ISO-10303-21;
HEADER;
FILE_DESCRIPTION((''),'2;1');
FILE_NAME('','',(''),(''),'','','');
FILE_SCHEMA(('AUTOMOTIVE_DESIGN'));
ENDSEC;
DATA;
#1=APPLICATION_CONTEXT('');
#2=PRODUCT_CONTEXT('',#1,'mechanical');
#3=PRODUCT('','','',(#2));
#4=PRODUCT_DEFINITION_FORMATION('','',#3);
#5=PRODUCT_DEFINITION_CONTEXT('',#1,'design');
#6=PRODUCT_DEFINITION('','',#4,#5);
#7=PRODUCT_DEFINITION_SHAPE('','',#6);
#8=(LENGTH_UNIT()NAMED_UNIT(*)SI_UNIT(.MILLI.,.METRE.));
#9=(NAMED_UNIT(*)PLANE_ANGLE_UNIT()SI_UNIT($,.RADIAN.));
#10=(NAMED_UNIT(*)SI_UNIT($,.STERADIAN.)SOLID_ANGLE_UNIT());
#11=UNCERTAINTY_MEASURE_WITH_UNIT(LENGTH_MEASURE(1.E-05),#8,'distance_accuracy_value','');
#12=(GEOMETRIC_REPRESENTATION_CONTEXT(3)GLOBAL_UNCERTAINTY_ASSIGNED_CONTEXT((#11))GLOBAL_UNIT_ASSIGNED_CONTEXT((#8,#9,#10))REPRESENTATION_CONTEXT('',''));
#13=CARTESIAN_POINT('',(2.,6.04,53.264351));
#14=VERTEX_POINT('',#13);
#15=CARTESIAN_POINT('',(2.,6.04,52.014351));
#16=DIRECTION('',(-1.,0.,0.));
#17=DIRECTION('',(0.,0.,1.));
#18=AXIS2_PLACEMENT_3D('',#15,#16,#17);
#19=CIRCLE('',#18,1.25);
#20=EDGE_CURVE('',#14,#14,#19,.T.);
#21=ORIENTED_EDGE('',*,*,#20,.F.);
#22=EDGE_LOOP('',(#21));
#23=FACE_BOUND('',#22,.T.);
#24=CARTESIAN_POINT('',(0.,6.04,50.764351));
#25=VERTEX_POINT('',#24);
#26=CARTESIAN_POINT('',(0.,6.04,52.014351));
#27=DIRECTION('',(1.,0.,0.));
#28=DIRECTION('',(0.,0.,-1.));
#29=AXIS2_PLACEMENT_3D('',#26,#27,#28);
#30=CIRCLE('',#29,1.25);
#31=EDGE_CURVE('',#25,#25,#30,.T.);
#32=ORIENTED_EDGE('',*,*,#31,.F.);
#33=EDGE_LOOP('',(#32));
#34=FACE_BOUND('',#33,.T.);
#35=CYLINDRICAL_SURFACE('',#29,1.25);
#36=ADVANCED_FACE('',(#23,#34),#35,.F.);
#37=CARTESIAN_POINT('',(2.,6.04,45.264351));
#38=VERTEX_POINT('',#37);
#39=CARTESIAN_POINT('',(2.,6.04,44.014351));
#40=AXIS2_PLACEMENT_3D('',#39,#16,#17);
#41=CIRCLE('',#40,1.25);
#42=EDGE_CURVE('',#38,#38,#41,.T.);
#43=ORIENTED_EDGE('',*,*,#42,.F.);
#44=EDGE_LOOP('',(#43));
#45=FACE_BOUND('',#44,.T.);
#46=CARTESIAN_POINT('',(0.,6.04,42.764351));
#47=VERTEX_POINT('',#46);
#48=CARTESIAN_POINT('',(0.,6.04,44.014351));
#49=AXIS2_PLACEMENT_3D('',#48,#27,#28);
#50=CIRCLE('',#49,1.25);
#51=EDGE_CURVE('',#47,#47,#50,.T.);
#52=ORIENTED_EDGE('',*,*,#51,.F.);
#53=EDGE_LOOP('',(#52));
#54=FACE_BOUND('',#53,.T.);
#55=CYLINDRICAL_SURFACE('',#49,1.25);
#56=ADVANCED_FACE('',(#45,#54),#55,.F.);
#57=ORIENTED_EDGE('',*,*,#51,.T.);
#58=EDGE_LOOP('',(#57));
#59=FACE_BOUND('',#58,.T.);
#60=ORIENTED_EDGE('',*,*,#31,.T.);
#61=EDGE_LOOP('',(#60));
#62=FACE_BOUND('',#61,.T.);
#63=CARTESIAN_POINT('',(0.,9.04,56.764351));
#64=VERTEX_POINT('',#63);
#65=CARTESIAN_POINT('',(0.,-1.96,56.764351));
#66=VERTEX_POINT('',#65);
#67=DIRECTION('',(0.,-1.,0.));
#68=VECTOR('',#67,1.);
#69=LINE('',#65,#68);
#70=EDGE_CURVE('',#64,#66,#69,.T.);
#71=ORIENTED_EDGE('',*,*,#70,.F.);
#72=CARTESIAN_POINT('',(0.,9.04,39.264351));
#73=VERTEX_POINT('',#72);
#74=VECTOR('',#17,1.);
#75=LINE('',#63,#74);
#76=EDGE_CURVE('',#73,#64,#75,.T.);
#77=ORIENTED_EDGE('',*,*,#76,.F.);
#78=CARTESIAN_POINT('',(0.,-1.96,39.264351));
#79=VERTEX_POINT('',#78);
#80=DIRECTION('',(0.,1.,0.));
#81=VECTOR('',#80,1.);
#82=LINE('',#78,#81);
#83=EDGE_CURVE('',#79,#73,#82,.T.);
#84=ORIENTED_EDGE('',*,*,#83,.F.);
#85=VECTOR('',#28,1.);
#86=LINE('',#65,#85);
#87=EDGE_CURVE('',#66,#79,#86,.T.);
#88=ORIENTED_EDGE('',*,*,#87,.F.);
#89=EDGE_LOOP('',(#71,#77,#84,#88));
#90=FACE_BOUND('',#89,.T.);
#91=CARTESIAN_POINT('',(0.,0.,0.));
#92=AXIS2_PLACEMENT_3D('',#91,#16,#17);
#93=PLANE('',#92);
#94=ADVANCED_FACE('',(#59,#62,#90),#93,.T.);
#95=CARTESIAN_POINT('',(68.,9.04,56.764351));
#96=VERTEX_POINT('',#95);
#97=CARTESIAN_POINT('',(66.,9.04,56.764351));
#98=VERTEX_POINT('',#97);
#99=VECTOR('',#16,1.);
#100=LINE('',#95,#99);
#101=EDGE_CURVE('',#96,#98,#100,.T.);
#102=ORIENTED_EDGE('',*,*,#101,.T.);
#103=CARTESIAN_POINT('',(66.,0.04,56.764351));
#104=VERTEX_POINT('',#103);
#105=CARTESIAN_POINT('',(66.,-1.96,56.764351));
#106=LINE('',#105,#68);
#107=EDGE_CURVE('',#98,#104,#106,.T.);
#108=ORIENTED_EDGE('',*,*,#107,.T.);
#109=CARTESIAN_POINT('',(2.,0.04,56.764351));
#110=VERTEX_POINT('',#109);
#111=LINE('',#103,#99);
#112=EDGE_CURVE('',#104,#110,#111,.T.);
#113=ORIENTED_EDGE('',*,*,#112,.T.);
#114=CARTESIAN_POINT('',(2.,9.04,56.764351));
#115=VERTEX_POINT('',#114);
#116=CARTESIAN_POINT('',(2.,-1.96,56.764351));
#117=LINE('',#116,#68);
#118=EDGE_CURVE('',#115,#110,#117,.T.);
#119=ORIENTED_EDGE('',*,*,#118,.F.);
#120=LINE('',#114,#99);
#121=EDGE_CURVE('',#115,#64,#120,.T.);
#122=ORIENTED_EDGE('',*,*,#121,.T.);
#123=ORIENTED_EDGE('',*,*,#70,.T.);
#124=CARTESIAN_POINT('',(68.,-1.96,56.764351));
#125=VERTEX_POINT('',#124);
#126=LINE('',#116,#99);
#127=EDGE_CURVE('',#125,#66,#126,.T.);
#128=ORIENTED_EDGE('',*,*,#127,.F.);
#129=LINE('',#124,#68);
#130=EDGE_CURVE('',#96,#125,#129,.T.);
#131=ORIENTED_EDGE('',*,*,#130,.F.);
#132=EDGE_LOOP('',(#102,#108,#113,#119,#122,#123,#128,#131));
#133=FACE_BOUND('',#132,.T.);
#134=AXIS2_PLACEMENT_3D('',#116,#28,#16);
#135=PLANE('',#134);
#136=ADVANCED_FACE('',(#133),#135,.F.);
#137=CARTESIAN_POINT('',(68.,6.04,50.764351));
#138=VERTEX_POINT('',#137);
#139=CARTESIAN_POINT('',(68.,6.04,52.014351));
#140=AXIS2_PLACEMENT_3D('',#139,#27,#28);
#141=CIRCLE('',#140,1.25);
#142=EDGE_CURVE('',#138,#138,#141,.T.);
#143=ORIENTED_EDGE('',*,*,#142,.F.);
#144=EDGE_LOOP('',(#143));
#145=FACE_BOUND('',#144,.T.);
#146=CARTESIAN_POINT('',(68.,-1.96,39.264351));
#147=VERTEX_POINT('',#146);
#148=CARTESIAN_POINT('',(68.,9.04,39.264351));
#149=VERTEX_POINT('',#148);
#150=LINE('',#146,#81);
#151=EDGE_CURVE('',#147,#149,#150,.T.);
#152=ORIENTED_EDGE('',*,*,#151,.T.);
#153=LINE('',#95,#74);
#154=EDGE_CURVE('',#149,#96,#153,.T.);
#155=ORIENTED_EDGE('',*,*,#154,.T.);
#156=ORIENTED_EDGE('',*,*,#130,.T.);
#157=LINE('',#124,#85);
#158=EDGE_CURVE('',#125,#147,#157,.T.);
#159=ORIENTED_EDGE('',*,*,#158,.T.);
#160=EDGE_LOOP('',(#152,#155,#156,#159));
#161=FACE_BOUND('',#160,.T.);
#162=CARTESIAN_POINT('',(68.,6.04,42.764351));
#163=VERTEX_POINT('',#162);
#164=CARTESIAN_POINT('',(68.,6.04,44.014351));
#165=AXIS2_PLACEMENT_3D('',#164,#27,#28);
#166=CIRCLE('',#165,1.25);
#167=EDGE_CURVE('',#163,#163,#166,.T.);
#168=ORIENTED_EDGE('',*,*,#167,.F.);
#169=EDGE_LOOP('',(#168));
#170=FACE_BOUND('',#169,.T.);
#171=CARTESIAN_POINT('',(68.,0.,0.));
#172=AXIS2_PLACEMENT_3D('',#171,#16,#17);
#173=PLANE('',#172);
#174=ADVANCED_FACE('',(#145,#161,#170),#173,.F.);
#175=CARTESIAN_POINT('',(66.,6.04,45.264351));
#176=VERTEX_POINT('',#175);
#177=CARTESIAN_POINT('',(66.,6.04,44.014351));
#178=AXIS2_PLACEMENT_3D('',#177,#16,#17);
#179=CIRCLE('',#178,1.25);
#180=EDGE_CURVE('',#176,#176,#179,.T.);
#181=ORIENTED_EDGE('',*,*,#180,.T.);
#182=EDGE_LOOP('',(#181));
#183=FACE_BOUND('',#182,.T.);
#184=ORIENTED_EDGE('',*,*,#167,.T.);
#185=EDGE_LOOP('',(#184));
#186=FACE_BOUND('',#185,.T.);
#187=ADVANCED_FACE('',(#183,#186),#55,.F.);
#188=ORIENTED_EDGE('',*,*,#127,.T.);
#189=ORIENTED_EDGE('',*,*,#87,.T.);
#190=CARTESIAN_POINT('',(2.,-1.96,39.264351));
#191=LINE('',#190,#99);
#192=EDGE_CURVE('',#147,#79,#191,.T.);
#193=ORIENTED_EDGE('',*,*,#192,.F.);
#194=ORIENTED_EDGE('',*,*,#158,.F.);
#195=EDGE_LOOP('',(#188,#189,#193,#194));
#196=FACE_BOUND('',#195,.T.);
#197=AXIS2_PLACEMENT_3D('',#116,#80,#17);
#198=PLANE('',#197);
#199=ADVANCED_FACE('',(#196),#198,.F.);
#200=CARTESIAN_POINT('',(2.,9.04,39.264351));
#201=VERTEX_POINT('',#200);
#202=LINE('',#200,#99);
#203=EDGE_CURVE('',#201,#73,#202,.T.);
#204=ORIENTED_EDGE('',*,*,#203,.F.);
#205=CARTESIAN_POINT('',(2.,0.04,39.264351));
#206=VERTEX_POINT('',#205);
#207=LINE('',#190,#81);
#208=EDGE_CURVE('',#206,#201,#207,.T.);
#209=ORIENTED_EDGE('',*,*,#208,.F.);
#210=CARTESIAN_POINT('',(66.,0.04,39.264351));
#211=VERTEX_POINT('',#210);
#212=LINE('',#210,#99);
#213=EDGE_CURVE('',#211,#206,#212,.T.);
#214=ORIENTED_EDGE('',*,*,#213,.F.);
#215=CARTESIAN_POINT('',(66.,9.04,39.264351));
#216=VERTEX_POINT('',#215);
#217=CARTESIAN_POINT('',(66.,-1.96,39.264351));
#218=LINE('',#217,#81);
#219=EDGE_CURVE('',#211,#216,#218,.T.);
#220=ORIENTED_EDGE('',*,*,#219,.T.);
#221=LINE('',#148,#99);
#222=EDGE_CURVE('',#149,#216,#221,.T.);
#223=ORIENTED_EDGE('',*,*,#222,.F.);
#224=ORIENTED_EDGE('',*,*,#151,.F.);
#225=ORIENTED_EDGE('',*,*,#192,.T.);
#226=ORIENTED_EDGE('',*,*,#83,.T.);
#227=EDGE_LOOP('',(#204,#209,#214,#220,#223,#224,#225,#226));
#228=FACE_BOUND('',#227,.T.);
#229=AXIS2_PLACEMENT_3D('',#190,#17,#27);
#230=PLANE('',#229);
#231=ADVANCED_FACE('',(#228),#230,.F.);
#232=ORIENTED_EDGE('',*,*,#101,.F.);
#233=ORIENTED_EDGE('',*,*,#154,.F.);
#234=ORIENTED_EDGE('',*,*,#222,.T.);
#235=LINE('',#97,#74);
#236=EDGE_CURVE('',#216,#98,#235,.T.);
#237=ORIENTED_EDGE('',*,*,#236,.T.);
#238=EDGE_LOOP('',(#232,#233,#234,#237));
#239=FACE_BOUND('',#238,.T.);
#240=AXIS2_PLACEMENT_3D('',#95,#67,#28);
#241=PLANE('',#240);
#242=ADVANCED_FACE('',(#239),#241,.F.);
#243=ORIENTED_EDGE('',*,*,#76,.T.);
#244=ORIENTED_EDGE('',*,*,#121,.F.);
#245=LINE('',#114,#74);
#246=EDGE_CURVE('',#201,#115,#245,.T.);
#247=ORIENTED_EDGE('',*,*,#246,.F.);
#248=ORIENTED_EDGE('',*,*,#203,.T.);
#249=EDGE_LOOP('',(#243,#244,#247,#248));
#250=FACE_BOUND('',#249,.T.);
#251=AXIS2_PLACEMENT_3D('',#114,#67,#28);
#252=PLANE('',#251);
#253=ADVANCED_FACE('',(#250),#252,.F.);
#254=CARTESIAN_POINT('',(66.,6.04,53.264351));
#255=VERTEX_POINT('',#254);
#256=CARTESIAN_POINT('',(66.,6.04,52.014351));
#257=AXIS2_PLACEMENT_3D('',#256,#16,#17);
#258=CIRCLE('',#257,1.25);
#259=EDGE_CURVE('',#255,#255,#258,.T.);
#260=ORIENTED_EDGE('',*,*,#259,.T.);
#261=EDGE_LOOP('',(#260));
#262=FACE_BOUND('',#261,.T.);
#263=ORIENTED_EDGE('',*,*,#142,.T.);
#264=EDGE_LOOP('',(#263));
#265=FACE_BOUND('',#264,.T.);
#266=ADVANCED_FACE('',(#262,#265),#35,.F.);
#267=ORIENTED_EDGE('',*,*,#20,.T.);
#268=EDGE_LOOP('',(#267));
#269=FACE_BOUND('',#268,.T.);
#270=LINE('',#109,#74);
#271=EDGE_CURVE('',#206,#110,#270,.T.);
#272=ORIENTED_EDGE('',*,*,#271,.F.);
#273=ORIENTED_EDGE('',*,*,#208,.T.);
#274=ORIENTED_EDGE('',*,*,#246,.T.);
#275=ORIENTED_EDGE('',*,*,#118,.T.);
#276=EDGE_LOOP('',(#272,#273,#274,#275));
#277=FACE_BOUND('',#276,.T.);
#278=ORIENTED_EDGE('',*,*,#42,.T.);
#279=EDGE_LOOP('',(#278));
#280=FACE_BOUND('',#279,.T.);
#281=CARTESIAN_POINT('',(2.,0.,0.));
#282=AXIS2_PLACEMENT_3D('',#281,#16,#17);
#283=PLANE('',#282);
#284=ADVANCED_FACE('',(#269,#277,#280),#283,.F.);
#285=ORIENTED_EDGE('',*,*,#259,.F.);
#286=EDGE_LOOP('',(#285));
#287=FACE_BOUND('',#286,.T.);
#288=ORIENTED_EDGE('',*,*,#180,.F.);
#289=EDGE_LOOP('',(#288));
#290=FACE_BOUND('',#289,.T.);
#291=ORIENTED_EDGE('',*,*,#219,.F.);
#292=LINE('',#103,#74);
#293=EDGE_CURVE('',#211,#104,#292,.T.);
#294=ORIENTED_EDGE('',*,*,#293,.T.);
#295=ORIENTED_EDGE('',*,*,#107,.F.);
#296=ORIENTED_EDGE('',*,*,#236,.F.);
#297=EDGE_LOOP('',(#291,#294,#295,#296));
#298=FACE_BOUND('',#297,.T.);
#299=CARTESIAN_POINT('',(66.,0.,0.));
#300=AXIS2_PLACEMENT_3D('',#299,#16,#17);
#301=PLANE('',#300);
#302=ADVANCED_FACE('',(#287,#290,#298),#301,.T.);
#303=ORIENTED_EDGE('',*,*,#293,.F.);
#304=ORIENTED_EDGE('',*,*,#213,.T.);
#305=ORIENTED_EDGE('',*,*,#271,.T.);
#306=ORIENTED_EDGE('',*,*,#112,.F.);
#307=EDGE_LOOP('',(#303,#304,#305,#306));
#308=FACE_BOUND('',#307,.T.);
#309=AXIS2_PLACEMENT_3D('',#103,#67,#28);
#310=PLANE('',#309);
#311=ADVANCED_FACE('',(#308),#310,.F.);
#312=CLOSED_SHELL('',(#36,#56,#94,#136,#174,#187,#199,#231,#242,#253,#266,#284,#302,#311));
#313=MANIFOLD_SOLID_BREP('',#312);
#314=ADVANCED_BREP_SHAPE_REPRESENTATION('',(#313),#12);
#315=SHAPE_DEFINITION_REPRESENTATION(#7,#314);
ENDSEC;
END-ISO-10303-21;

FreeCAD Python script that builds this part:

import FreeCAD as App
import Part
import Sketcher

V = App.Vector

doc = App.newDocument("Part")
body = doc.addObject("PartDesign::Body", "Body")

# Sketch on YZ plane
sketch1 = body.newObject("Sketcher::SketchObject", "Sketch")
sketch1.AttachmentSupport = (doc.getObject("YZ_Plane"), [""])
sketch1.MapMode = "FlatFace"
sketch1.addGeometry([
    Part.LineSegment(V(9.04, 56.764351, 0), V(-1.96, 56.764351, 0)),
    Part.LineSegment(V(-1.96, 56.764351, 0), V(-1.96, 39.264351, 0)),
    Part.LineSegment(V(-1.96, 39.264351, 0), V(9.04, 39.264351, 0)),
    Part.LineSegment(V(9.04, 39.264351, 0), V(9.04, 56.764351, 0)),
], False)
sketch1.addConstraint([
    Sketcher.Constraint("Coincident", 0, 2, 1, 1),
    Sketcher.Constraint("Coincident", 1, 2, 2, 1),
    Sketcher.Constraint("Coincident", 2, 2, 3, 1),
    Sketcher.Constraint("Coincident", 3, 2, 0, 1),
    Sketcher.Constraint("Horizontal", 0),
    Sketcher.Constraint("Vertical", 1),
    Sketcher.Constraint("Horizontal", 2),
    Sketcher.Constraint("Vertical", 3),
    Sketcher.Constraint("DistanceX", 0, 2, 0, 1, 11.0),
    Sketcher.Constraint("DistanceY", 1, 2, 1, 1, 17.5),
    Sketcher.Constraint("DistanceX", 0, 2, -1, 1, 1.96),
    Sketcher.Constraint("DistanceY", -1, 1, 0, 2, 56.764351),
])
pad1 = body.newObject("PartDesign::Pad", "Pad")
pad1.Profile = sketch1
pad1.Length = 2

# Sketch on YZ plane
sketch2 = body.newObject("Sketcher::SketchObject", "Sketch001")
sketch2.AttachmentSupport = (doc.getObject("YZ_Plane"), [""])
sketch2.MapMode = "FlatFace"
sketch2.AttachmentOffset = App.Placement(V(0, 0, 2), App.Rotation())
sketch2.addGeometry([
    Part.LineSegment(V(0.04, 56.764351, 0), V(-1.96, 56.764351, 0)),
    Part.LineSegment(V(-1.96, 56.764351, 0), V(-1.96, 39.264351, 0)),
    Part.LineSegment(V(-1.96, 39.264351, 0), V(0.04, 39.264351, 0)),
    Part.LineSegment(V(0.04, 39.264351, 0), V(0.04, 56.764351, 0)),
], False)
sketch2.addConstraint([
    Sketcher.Constraint("Coincident", 0, 2, 1, 1),
    Sketcher.Constraint("Coincident", 1, 2, 2, 1),
    Sketcher.Constraint("Coincident", 2, 2, 3, 1),
    Sketcher.Constraint("Coincident", 3, 2, 0, 1),
    Sketcher.Constraint("Horizontal", 0),
    Sketcher.Constraint("Vertical", 1),
    Sketcher.Constraint("Horizontal", 2),
    Sketcher.Constraint("Vertical", 3),
    Sketcher.Constraint("DistanceX", 0, 2, 0, 1, 2.0),
    Sketcher.Constraint("DistanceY", 1, 2, 1, 1, 17.5),
    Sketcher.Constraint("DistanceX", 0, 2, -1, 1, 1.96),
    Sketcher.Constraint("DistanceY", -1, 1, 0, 2, 56.764351),
])
pad2 = body.newObject("PartDesign::Pad", "Pad001")
pad2.Profile = sketch2
pad2.Length = 64

# Sketch on YZ plane
sketch3 = body.newObject("Sketcher::SketchObject", "Sketch002")
sketch3.AttachmentSupport = (doc.getObject("YZ_Plane"), [""])
sketch3.MapMode = "FlatFace"
sketch3.AttachmentOffset = App.Placement(V(0, 0, 66), App.Rotation())
sketch3.addGeometry([
    Part.LineSegment(V(9.04, 56.764351, 0), V(-1.96, 56.764351, 0)),
    Part.LineSegment(V(-1.96, 56.764351, 0), V(-1.96, 39.264351, 0)),
    Part.LineSegment(V(-1.96, 39.264351, 0), V(9.04, 39.264351, 0)),
    Part.LineSegment(V(9.04, 39.264351, 0), V(9.04, 56.764351, 0)),
], False)
sketch3.addConstraint([
    Sketcher.Constraint("Coincident", 0, 2, 1, 1),
    Sketcher.Constraint("Coincident", 1, 2, 2, 1),
    Sketcher.Constraint("Coincident", 2, 2, 3, 1),
    Sketcher.Constraint("Coincident", 3, 2, 0, 1),
    Sketcher.Constraint("Horizontal", 0),
    Sketcher.Constraint("Vertical", 1),
    Sketcher.Constraint("Horizontal", 2),
    Sketcher.Constraint("Vertical", 3),
    Sketcher.Constraint("DistanceX", 0, 2, 0, 1, 11.0),
    Sketcher.Constraint("DistanceY", 1, 2, 1, 1, 17.5),
    Sketcher.Constraint("DistanceX", 0, 2, -1, 1, 1.96),
    Sketcher.Constraint("DistanceY", -1, 1, 0, 2, 56.764351),
])
pad3 = body.newObject("PartDesign::Pad", "Pad002")
pad3.Profile = sketch3
pad3.Length = 2

# Sketch on YZ plane
sketch4 = body.newObject("Sketcher::SketchObject", "Sketch003")
sketch4.AttachmentSupport = (doc.getObject("YZ_Plane"), [""])
sketch4.MapMode = "FlatFace"
sketch4.AttachmentOffset = App.Placement(V(0, 0, 68), App.Rotation())
sketch4.addGeometry([
    Part.Circle(V(6.04, 52.014351, 0), V(0, 0, 1), 1.25),
    Part.Circle(V(6.04, 44.014351, 0), V(0, 0, 1), 1.25),
], False)
sketch4.addConstraint([
    Sketcher.Constraint("Equal", 0, 1),
    Sketcher.Constraint("Vertical", 0, 3, 1, 3),
    Sketcher.Constraint("Diameter", 0, 2.5),
    Sketcher.Constraint("DistanceY", 1, 3, 0, 3, 8.0),
    Sketcher.Constraint("DistanceX", -1, 1, 0, 3, 6.04),
    Sketcher.Constraint("DistanceY", -1, 1, 0, 3, 52.014351),
])
pocket1 = body.newObject("PartDesign::Pocket", "Pocket")
pocket1.Profile = sketch4
pocket1.Length = 68

doc.recompute()
